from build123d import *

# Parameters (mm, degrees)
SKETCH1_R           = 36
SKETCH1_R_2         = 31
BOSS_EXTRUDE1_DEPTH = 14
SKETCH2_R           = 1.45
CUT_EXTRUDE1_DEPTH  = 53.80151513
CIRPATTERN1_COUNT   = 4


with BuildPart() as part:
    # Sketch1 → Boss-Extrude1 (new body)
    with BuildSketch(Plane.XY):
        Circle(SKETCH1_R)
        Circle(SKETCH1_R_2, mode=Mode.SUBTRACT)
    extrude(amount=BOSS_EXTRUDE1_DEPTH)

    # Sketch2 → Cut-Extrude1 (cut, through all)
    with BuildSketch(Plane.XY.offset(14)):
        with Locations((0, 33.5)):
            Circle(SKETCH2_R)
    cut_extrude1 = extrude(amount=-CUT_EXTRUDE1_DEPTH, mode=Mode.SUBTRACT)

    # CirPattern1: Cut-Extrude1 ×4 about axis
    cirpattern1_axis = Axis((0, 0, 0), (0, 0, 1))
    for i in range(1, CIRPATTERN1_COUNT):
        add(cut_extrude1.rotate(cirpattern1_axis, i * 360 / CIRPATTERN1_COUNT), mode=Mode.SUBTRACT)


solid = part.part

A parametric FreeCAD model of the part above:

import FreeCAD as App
import Part
import Sketcher

doc = App.newDocument("Part")
body = doc.addObject("PartDesign::Body", "Body")

sketch1 = doc.addObject("Sketcher::SketchObject", "Sketch")
body.addObject(sketch1)
sketch1.AttachmentSupport = (doc.XY_Plane, [""])
sketch1.MapMode = "FlatFace"
sketch1.addGeometry(Part.Circle(App.Vector(0, 0, 0), App.Vector(0, 0, 1), 36), False)
sketch1.addGeometry(Part.Circle(App.Vector(0, 0, 0), App.Vector(0, 0, 1), 31), False)
sketch1.addConstraint(Sketcher.Constraint("Coincident", 0, 3, -1, 1))
sketch1.addConstraint(Sketcher.Constraint("Coincident", 1, 3, -1, 1))
sketch1.addConstraint(Sketcher.Constraint("Diameter", 0, 72.0))
sketch1.addConstraint(Sketcher.Constraint("Diameter", 1, 62.0))
pad1 = doc.addObject("PartDesign::Pad", "Pad")
body.addObject(pad1)
pad1.Profile = sketch1
pad1.Length = 14

sketch2 = doc.addObject("Sketcher::SketchObject", "Sketch001")
body.addObject(sketch2)
sketch2.AttachmentSupport = (doc.XY_Plane, [""])
sketch2.MapMode = "FlatFace"
sketch2.AttachmentOffset = App.Placement(App.Vector(0, 0, 14), App.Rotation())
sketch2.addGeometry(Part.Circle(App.Vector(0, 33.5, 0), App.Vector(0, 0, 1), 1.4), False)
sketch2.addConstraint(Sketcher.Constraint("PointOnObject", 0, 3, -2))
sketch2.addConstraint(Sketcher.Constraint("Diameter", 0, 2.9))
sketch2.addConstraint(Sketcher.Constraint("DistanceY", -1, 1, 0, 3, 33.5))
pocket1 = doc.addObject("PartDesign::Pocket", "Pocket")
body.addObject(pocket1)
pocket1.Profile = sketch2
pocket1.Type = "ThroughAll"
doc.recompute()

polarpattern = doc.addObject("PartDesign::PolarPattern", "PolarPattern")
body.addObject(polarpattern)
polarpattern.Originals = [pocket1]
polarpattern.Axis = (doc.Z_Axis, [""])
polarpattern.Angle = 360
polarpattern.Occurrences = 4
body.Tip = polarpattern

doc.recompute()
